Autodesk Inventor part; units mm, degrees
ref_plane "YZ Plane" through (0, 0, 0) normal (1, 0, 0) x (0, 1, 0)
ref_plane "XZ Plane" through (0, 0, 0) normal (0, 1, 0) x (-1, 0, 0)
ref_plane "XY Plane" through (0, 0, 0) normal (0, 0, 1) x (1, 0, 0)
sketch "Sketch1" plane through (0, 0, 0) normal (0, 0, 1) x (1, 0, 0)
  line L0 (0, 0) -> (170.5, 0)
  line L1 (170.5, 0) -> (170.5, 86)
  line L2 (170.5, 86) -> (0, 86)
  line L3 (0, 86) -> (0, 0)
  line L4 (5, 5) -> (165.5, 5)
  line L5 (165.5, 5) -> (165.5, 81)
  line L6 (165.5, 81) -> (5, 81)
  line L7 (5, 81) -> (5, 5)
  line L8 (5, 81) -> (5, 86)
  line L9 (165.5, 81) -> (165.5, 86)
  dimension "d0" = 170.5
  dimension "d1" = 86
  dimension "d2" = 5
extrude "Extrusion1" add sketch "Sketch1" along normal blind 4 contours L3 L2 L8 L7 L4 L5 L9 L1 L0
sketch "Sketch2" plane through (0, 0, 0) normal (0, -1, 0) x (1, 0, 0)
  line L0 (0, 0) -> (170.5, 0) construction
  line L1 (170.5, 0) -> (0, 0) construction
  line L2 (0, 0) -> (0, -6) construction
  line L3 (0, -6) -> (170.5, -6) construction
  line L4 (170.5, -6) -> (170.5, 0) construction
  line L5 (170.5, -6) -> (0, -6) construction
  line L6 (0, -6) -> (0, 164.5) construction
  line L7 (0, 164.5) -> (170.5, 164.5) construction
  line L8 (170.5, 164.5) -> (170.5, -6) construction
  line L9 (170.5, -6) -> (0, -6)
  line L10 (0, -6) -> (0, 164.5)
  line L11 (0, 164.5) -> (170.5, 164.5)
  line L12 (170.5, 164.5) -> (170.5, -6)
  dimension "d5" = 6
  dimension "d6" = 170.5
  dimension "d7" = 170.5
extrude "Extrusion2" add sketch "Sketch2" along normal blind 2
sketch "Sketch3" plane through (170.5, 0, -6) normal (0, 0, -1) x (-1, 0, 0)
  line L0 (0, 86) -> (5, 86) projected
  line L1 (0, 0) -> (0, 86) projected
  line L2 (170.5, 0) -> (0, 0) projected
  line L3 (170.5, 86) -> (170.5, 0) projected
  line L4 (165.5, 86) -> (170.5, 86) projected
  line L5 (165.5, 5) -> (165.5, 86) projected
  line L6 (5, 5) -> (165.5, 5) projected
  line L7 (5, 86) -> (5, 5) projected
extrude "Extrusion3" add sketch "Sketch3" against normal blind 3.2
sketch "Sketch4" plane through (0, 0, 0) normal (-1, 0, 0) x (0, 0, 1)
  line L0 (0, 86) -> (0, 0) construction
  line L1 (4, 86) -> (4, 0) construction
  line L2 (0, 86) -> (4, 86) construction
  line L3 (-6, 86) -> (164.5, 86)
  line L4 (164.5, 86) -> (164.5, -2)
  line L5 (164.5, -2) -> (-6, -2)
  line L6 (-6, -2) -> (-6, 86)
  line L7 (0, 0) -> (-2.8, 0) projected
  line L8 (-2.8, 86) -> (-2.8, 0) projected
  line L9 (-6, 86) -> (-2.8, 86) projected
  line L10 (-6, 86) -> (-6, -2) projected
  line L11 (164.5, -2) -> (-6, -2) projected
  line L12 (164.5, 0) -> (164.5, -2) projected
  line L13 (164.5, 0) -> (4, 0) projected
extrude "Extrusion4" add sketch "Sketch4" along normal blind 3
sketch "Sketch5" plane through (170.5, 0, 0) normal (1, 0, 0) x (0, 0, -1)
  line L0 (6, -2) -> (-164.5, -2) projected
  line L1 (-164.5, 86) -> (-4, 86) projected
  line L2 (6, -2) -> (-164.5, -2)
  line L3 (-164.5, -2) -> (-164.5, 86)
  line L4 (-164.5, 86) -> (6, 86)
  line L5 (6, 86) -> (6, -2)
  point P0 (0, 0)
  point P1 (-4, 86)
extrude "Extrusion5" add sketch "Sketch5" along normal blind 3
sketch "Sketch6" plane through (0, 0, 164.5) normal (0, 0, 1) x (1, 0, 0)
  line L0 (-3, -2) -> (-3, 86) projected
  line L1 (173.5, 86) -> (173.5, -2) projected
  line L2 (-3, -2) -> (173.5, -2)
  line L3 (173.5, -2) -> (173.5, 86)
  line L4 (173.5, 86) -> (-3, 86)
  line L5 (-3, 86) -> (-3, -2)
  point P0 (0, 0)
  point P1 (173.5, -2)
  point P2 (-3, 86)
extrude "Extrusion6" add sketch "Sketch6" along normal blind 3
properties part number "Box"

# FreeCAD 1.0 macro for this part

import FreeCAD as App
import Part
import Sketcher


def add_polygon(sketch, points):
    """Adds a closed chain of lines whose ends are joined by coincident constraints."""
    first, n = sketch.GeometryCount, len(points)
    for a, b in zip(points, points[1:] + points[:1]):
        sketch.addGeometry(Part.LineSegment(App.Vector(*a, 0), App.Vector(*b, 0)), False)
    for i in range(n):
        sketch.addConstraint(Sketcher.Constraint("Coincident", first + i, 2, first + (i + 1) % n, 1))

doc = App.newDocument("Part")
body = doc.addObject("PartDesign::Body", "Body")

# Sketch on XY plane
sketch1 = body.newObject("Sketcher::SketchObject", "Sketch")
sketch1.AttachmentSupport = (doc.getObject("XY_Plane"), [""])
sketch1.MapMode = "FlatFace"
add_polygon(sketch1, [(0, 86), (0, 0), (170, 0), (170, 86), (166, 86), (166, 5), (5, 5), (5, 86)])  # lines 0-7
sketch1.addConstraint([
    Sketcher.Constraint("Vertical", 0),
    Sketcher.Constraint("Horizontal", 1),
    Sketcher.Constraint("Vertical", 2),
    Sketcher.Constraint("Horizontal", 3),
    Sketcher.Constraint("Vertical", 4),
    Sketcher.Constraint("Horizontal", 5),
    Sketcher.Constraint("Vertical", 6),
    Sketcher.Constraint("Horizontal", 7),
    Sketcher.Constraint("Coincident", 0, 2, -1, 1),
    Sketcher.Constraint("Horizontal", 3, 2, 6, 2),
    Sketcher.Constraint("Equal", 3, 7),
    Sketcher.Constraint("DistanceX", 3, 2, 3, 1, 5.0),
    Sketcher.Constraint("DistanceY", 0, 2, 0, 1, 86.0),
    Sketcher.Constraint("DistanceX", 1, 1, 1, 2, 170.5),
    Sketcher.Constraint("DistanceY", -1, 1, 4, 2, 5.0),
])
pad1 = body.newObject("PartDesign::Pad", "Pad")
pad1.Profile = sketch1
pad1.Length = 4

# Sketch on XZ plane
sketch2 = body.newObject("Sketcher::SketchObject", "Sketch001")
sketch2.AttachmentSupport = (doc.getObject("XZ_Plane"), [""])
sketch2.MapMode = "FlatFace"
add_polygon(sketch2, [(0, -6), (170, -6), (170, 164), (0, 164)])  # lines 0-3
sketch2.addConstraint([
    Sketcher.Constraint("Horizontal", 0),
    Sketcher.Constraint("Vertical", 1),
    Sketcher.Constraint("Horizontal", 2),
    Sketcher.Constraint("Vertical", 3),
    Sketcher.Constraint("PointOnObject", 2, 2, -2),
    Sketcher.Constraint("Equal", 2, 1),
    Sketcher.Constraint("DistanceX", 0, 1, 0, 2, 170.5),
    Sketcher.Constraint("DistanceY", 0, 2, -1, 1, 6.0),
])
pad2 = body.newObject("PartDesign::Pad", "Pad001")
pad2.Profile = sketch2
pad2.Length = 2

# Sketch on XY plane
sketch3 = body.newObject("Sketcher::SketchObject", "Sketch002")
sketch3.AttachmentSupport = (doc.getObject("XY_Plane"), [""])
sketch3.MapMode = "FlatFace"
sketch3.AttachmentOffset = App.Placement(App.Vector(0, 0, -6), App.Rotation())
add_polygon(sketch3, [(166, 86), (170, 86), (170, 0), (0, 0), (0, 86), (5, 86), (5, 5), (166, 5)])  # lines 0-7
sketch3.addConstraint([
    Sketcher.Constraint("Horizontal", 0),
    Sketcher.Constraint("Vertical", 1),
    Sketcher.Constraint("Horizontal", 2),
    Sketcher.Constraint("Vertical", 3),
    Sketcher.Constraint("Horizontal", 4),
    Sketcher.Constraint("Vertical", 5),
    Sketcher.Constraint("Horizontal", 6),
    Sketcher.Constraint("Vertical", 7),
    Sketcher.Constraint("Coincident", 2, 2, -1, 1),
    Sketcher.Constraint("Horizontal", 0, 2, 3, 2),
    Sketcher.Constraint("Equal", 0, 4),
    Sketcher.Constraint("DistanceX", 0, 1, 0, 2, 5.0),
    Sketcher.Constraint("DistanceY", 1, 2, 1, 1, 86.0),
    Sketcher.Constraint("DistanceY", 5, 2, 5, 1, 81.0),
    Sketcher.Constraint("DistanceX", 2, 2, 2, 1, 170.5),
])
pad3 = body.newObject("PartDesign::Pad", "Pad002")
pad3.Profile = sketch3
pad3.Length = 3.2

# Sketch on YZ plane
sketch4 = body.newObject("Sketcher::SketchObject", "Sketch003")
sketch4.AttachmentSupport = (doc.getObject("YZ_Plane"), [""])
sketch4.MapMode = "FlatFace"
add_polygon(sketch4, [(86, 164), (86, -6), (-2, -6), (-2, 164)])  # lines 0-3
sketch4.addConstraint([
    Sketcher.Constraint("Vertical", 0),
    Sketcher.Constraint("Horizontal", 1),
    Sketcher.Constraint("Vertical", 2),
    Sketcher.Constraint("Horizontal", 3),
    Sketcher.Constraint("DistanceX", 1, 2, 1, 1, 88.0),
    Sketcher.Constraint("DistanceY", 0, 2, 0, 1, 170.5),
    Sketcher.Constraint("DistanceX", -1, 1, 0, 2, 86.0),
    Sketcher.Constraint("DistanceY", 0, 2, -1, 1, 6.0),
])
pad4 = body.newObject("PartDesign::Pad", "Pad003")
pad4.Profile = sketch4
pad4.Length = 3
pad4.Reversed = True

# Sketch on YZ plane
sketch5 = body.newObject("Sketcher::SketchObject", "Sketch004")
sketch5.AttachmentSupport = (doc.getObject("YZ_Plane"), [""])
sketch5.MapMode = "FlatFace"
sketch5.AttachmentOffset = App.Placement(App.Vector(0, 0, 170.5), App.Rotation())
add_polygon(sketch5, [(-2, 164), (-2, -6), (86, -6), (86, 164)])  # lines 0-3
sketch5.addConstraint([
    Sketcher.Constraint("Vertical", 0),
    Sketcher.Constraint("Horizontal", 1),
    Sketcher.Constraint("Vertical", 2),
    Sketcher.Constraint("Horizontal", 3),
    Sketcher.Constraint("DistanceX", 1, 1, 1, 2, 88.0),
    Sketcher.Constraint("DistanceY", 0, 2, 0, 1, 170.5),
    Sketcher.Constraint("DistanceX", 0, 2, -1, 1, 2.0),
    Sketcher.Constraint("DistanceY", 0, 2, -1, 1, 6.0),
])
pad5 = body.newObject("PartDesign::Pad", "Pad004")
pad5.Profile = sketch5
pad5.Length = 3

# Sketch on XY plane
sketch6 = body.newObject("Sketcher::SketchObject", "Sketch005")
sketch6.AttachmentSupport = (doc.getObject("XY_Plane"), [""])
sketch6.MapMode = "FlatFace"
sketch6.AttachmentOffset = App.Placement(App.Vector(0, 0, 164.5), App.Rotation())
add_polygon(sketch6, [(-3, 86), (-3, -2), (174, -2), (174, 86)])  # lines 0-3
sketch6.addConstraint([
    Sketcher.Constraint("Vertical", 0),
    Sketcher.Constraint("Horizontal", 1),
    Sketcher.Constraint("Vertical", 2),
    Sketcher.Constraint("Horizontal", 3),
    Sketcher.Constraint("DistanceY", 0, 2, 0, 1, 88.0),
    Sketcher.Constraint("DistanceX", 1, 1, 1, 2, 176.5),
    Sketcher.Constraint("DistanceX", 0, 2, -1, 1, 3.0),
    Sketcher.Constraint("DistanceY", 0, 2, -1, 1, 2.0),
])
pad6 = body.newObject("PartDesign::Pad", "Pad005")
pad6.Profile = sketch6
pad6.Length = 3

doc.recompute()
